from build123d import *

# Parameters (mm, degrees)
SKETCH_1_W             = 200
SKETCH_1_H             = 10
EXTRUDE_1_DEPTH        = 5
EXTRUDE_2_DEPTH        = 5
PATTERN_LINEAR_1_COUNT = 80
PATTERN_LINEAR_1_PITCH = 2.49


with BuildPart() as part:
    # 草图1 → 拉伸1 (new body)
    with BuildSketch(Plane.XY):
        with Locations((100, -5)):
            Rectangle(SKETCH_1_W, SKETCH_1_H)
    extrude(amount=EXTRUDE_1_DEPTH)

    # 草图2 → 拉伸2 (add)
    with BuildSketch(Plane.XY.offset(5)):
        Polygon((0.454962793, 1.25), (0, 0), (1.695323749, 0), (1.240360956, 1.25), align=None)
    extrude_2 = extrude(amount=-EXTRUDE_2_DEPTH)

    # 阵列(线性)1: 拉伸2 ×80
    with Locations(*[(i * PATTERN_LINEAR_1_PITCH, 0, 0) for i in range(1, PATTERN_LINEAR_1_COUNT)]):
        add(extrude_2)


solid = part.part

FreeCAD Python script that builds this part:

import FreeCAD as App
import Part
import Sketcher
Q = App.Units.Quantity


def add_polygon(sketch, points):
    """Adds a closed chain of lines whose ends are joined by coincident constraints."""
    first, n = sketch.GeometryCount, len(points)
    for a, b in zip(points, points[1:] + points[:1]):
        sketch.addGeometry(Part.LineSegment(App.Vector(*a, 0), App.Vector(*b, 0)), False)
    for i in range(n):
        sketch.addConstraint(Sketcher.Constraint("Coincident", first + i, 2, first + (i + 1) % n, 1))

doc = App.newDocument("Part")
body = doc.addObject("PartDesign::Body", "Body")

# Sketch on XY plane
sketch1 = body.newObject("Sketcher::SketchObject", "Sketch")
sketch1.AttachmentSupport = (doc.getObject("XY_Plane"), [""])
sketch1.MapMode = "FlatFace"
add_polygon(sketch1, [(0, 0), (0, -10), (200, -10), (200, 0)])  # lines 0-3
sketch1.addConstraint([
    Sketcher.Constraint("Vertical", 0),
    Sketcher.Constraint("Horizontal", 1),
    Sketcher.Constraint("Vertical", 2),
    Sketcher.Constraint("Horizontal", 3),
    Sketcher.Constraint("Coincident", 3, 2, -1, 1),
    Sketcher.Constraint("DistanceX", 1, 1, 1, 2, 200.0),
    Sketcher.Constraint("DistanceY", 0, 2, 0, 1, 10.0),
])
pad1 = body.newObject("PartDesign::Pad", "Pad")
pad1.Profile = sketch1
pad1.Length = 5

# Sketch on XY plane
sketch2 = body.newObject("Sketcher::SketchObject", "Sketch001")
sketch2.AttachmentSupport = (doc.getObject("XY_Plane"), [""])
sketch2.MapMode = "FlatFace"
sketch2.AttachmentOffset = App.Placement(App.Vector(0, 0, 5), App.Rotation())
add_polygon(sketch2, [(0.5, 1.2), (0, 0), (1.7, 0), (1.2, 1.2)])  # lines 0-3
sketch2.addConstraint([
    Sketcher.Constraint("Horizontal", 1),
    Sketcher.Constraint("Horizontal", 3),
    Sketcher.Constraint("Coincident", 0, 2, -1, 1),
    Sketcher.Constraint("Equal", 0, 2),
    Sketcher.Constraint("Angle", 0, Q("-110 deg")),
    Sketcher.Constraint("DistanceY", -1, 1, 2, 2, 1.25),
    Sketcher.Constraint("DistanceX", 3, 2, 3, 1, 0.785398),
])
pad2 = body.newObject("PartDesign::Pad", "Pad001")
pad2.Profile = sketch2
pad2.Length = 5
pad2.Reversed = True
doc.recompute()

linearpattern = body.newObject("PartDesign::LinearPattern", "LinearPattern")
linearpattern.Originals = [pad2]
linearpattern.Direction = (doc.getObject("X_Axis"), [""])
linearpattern.Mode = "offset"
linearpattern.Offset = 2.49
linearpattern.Occurrences = 80
body.Tip = linearpattern

doc.recompute()
